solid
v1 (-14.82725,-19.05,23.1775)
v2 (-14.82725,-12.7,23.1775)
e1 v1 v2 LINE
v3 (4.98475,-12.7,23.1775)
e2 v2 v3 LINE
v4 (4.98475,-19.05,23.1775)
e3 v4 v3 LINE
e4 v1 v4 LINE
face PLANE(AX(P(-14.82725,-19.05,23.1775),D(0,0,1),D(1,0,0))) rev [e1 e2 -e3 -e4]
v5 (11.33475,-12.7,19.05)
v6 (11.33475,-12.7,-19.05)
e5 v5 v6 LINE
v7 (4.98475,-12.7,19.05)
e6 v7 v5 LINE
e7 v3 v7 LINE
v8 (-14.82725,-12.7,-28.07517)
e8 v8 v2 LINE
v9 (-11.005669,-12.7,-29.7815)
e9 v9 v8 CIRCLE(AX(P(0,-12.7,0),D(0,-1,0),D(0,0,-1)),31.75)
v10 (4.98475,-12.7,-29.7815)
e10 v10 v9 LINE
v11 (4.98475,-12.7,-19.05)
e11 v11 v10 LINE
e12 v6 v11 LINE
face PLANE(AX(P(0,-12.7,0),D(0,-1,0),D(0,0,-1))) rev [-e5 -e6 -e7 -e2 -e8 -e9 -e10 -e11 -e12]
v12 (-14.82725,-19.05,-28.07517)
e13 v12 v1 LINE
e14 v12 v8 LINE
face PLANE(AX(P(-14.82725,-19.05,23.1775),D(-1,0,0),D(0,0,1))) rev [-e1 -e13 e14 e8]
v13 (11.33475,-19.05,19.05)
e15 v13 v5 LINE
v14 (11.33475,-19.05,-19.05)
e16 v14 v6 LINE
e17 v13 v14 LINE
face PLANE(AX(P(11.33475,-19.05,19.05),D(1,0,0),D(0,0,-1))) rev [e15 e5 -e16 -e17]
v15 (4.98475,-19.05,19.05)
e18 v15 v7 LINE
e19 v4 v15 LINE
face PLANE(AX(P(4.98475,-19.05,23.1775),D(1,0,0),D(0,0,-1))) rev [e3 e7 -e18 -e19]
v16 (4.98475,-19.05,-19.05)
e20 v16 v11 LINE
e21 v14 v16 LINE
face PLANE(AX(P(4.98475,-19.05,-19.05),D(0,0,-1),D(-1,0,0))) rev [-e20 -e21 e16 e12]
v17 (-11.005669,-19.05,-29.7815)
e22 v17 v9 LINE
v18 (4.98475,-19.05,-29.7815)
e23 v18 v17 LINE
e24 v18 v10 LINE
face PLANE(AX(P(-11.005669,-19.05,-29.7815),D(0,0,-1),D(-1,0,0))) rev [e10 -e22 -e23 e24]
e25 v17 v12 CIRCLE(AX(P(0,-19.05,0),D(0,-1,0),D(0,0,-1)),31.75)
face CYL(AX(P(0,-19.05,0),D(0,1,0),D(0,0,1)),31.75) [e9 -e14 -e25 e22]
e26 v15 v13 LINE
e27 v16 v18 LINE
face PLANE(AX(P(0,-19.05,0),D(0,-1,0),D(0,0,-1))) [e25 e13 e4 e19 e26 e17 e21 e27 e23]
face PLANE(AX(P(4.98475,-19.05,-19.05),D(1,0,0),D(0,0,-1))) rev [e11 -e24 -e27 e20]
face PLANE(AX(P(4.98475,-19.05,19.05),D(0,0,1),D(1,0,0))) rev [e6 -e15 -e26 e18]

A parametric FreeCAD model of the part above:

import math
import FreeCAD as App
import Part
import Sketcher
from FreeCAD import Vector
Q = App.Units.Quantity

doc = App.newDocument("Part")
body = doc.addObject("PartDesign::Body", "Body")

sketch1 = doc.addObject("Sketcher::SketchObject", "Sketch")
body.addObject(sketch1)
sketch1.AttachmentSupport = (doc.XZ_Plane, [""])
sketch1.MapMode = "FlatFace"
sketch1.addGeometry(Part.Circle(Vector(0, 0, 0), Vector(0, 0, 1), 48), False)
sketch1.addConstraint([
    Sketcher.Constraint("Coincident", 0, 3, -1, 1),
    Sketcher.Constraint("Diameter", 0, Q("3.75 in")),
])
pad1 = doc.addObject("PartDesign::Pad", "Pad")
body.addObject(pad1)
pad1.Profile = sketch1
pad1.Length = Q("0.5 in")

sketch2 = doc.addObject("Sketcher::SketchObject", "Sketch001")
body.addObject(sketch2)
sketch2.AttachmentSupport = (doc.XZ_Plane, [""])
sketch2.MapMode = "FlatFace"
sketch2.AttachmentOffset = App.Placement(Vector(0, 0, 0.5 * 25.4), App.Rotation())
sketch2.addGeometry([
    Part.LineSegment(Vector(-15, 23, 0), Vector(-15, -30, 0)),
    Part.LineSegment(Vector(-15, -30, 0), Vector(5, -30, 0)),
    Part.LineSegment(Vector(5, -30, 0), Vector(5, 23, 0)),
    Part.LineSegment(Vector(5, 23, 0), Vector(-15, 23, 0)),
], False)
sketch2.addConstraint([
    Sketcher.Constraint("Coincident", 0, 2, 1, 1),
    Sketcher.Constraint("Coincident", 1, 2, 2, 1),
    Sketcher.Constraint("Coincident", 2, 2, 3, 1),
    Sketcher.Constraint("Coincident", 3, 2, 0, 1),
    Sketcher.Constraint("Vertical", 0),
    Sketcher.Constraint("Horizontal", 1),
    Sketcher.Constraint("Vertical", 2),
    Sketcher.Constraint("Horizontal", 3),
    Sketcher.Constraint("DistanceX", 1, 1, 1, 2, Q("0.78 in")),
    Sketcher.Constraint("DistanceY", 0, 2, 0, 1, Q("2.085 in")),
    Sketcher.Constraint("DistanceY", 0, 2, -1, 1, Q("1.1725 in")),
    Sketcher.Constraint("DistanceX", 0, 2, -1, 1, 14.82725),
])
pocket1 = doc.addObject("PartDesign::Pocket", "Pocket")
body.addObject(pocket1)
pocket1.Profile = sketch2
pocket1.Length = 9.275816
body2 = doc.addObject("PartDesign::Body", "Body001")

sketch3 = doc.addObject("Sketcher::SketchObject", "Sketch002")
body2.addObject(sketch3)
sketch3.AttachmentSupport = (doc.getObject("XZ_Plane001"), [""])
sketch3.MapMode = "FlatFace"
sketch3.addGeometry([
    Part.Circle(Vector(0, 0, 0), Vector(0, 0, 1), 47.6),
    Part.LineSegment(Vector(30.5, 32.4, 0), Vector(30.5, -5.1, 0)),
    Part.LineSegment(Vector(30.5, -5.1, 0), Vector(26, -5.1, 0)),
    Part.LineSegment(Vector(26, -5.1, 0), Vector(26, 36, 0)),
    Part.ArcOfCircle(Part.Circle(Vector(0, 0, 0), Vector(0, 0, 1), 44.4), math.radians(54), math.radians(126)),
    Part.LineSegment(Vector(-26, 36, 0), Vector(-26, -5.1, 0)),
    Part.LineSegment(Vector(-26, -5.1, 0), Vector(-30.5, -5.1, 0)),
    Part.LineSegment(Vector(-30.5, -5.1, 0), Vector(-30.5, 32.4, 0)),
    Part.ArcOfCircle(Part.Circle(Vector(0, 0, 0), Vector(0, 0, 1), 44.5), math.radians(133), math.radians(244)),
    Part.LineSegment(Vector(-19.7, -39.9, 0), Vector(-19.7, -25.1, 0)),
    Part.LineSegment(Vector(-19.7, -25.1, 0), Vector(-15.2, -25.1, 0)),
    Part.LineSegment(Vector(-15.2, -25.1, 0), Vector(-15.2, -41.8, 0)),
    Part.ArcOfCircle(Part.Circle(Vector(0, 0, 0), Vector(0, 0, 1), 44.5), math.radians(-110), math.radians(-70)),
    Part.LineSegment(Vector(15.2, -41.8, 0), Vector(15.2, -25.1, 0)),
    Part.LineSegment(Vector(15.2, -25.1, 0), Vector(19.7, -25.1, 0)),
    Part.LineSegment(Vector(19.7, -25.1, 0), Vector(19.7, -39.9, 0)),
    Part.ArcOfCircle(Part.Circle(Vector(0, 0, 0), Vector(0, 0, 1), 44.5), math.radians(-64), math.radians(47)),
], False)
sketch3.addConstraint([
    Sketcher.Constraint("Coincident", 1, 2, 2, 1),
    Sketcher.Constraint("Coincident", 2, 2, 3, 1),
    Sketcher.Constraint("Coincident", 3, 2, 4, 1),
    Sketcher.Constraint("Coincident", 4, 2, 5, 1),
    Sketcher.Constraint("Coincident", 5, 2, 6, 1),
    Sketcher.Constraint("Coincident", 6, 2, 7, 1),
    Sketcher.Constraint("Coincident", 7, 2, 8, 1),
    Sketcher.Constraint("Coincident", 8, 2, 9, 1),
    Sketcher.Constraint("Coincident", 9, 2, 10, 1),
    Sketcher.Constraint("Coincident", 10, 2, 11, 1),
    Sketcher.Constraint("Coincident", 11, 2, 12, 1),
    Sketcher.Constraint("Coincident", 12, 2, 13, 1),
    Sketcher.Constraint("Coincident", 13, 2, 14, 1),
    Sketcher.Constraint("Coincident", 14, 2, 15, 1),
    Sketcher.Constraint("Coincident", 15, 2, 16, 1),
    Sketcher.Constraint("Coincident", 16, 2, 1, 1),
    Sketcher.Constraint("Vertical", 1),
    Sketcher.Constraint("Horizontal", 2),
    Sketcher.Constraint("Vertical", 3),
    Sketcher.Constraint("Vertical", 5),
    Sketcher.Constraint("Horizontal", 6),
    Sketcher.Constraint("Vertical", 7),
    Sketcher.Constraint("Vertical", 9),
    Sketcher.Constraint("Horizontal", 10),
    Sketcher.Constraint("Vertical", 11),
    Sketcher.Constraint("Vertical", 13),
    Sketcher.Constraint("Horizontal", 14),
    Sketcher.Constraint("Vertical", 15),
    Sketcher.Constraint("Coincident", 0, 3, -1, 1),
    Sketcher.Constraint("Coincident", 4, 3, -1, 1),
    Sketcher.Constraint("Coincident", 8, 3, -1, 1),
    Sketcher.Constraint("Coincident", 12, 3, -1, 1),
    Sketcher.Constraint("Coincident", 16, 3, -1, 1),
    Sketcher.Constraint("Equal", 4, 8),
    Sketcher.Constraint("Equal", 8, 12),
    Sketcher.Constraint("Equal", 12, 16),
    Sketcher.Constraint("Symmetric", 2, 2, 5, 2, -2),
    Sketcher.Constraint("Symmetric", 10, 2, 13, 2, -2),
    Sketcher.Constraint("Horizontal", 8, 2, 15, 2),
    Sketcher.Constraint("Horizontal", 7, 2, 16, 2),
    Sketcher.Constraint("Equal", 6, 10),
    Sketcher.Constraint("Diameter", 0, Q("3.75 in")),
    Sketcher.Constraint("Radius", 4, Q("1.75 in")),
    Sketcher.Constraint("DistanceX", -1, 1, 1, 2, Q("1.2 in")),
    Sketcher.Constraint("DistanceY", 1, 2, -1, 1, Q("0.2 in")),
    Sketcher.Constraint("DistanceX", 10, 2, -1, 1, Q("0.6 in")),
    Sketcher.Constraint("DistanceX", 2, 2, 2, 1, Q("0.175 in")),
    Sketcher.Constraint("DistanceY", 9, 2, -1, 1, Q("0.9875 in")),
])
pad2 = doc.addObject("PartDesign::Pad", "Pad001")
body2.addObject(pad2)
pad2.Profile = sketch3
pad2.Length = Q("0.5 in")
pad2.Reversed = True
body3 = doc.addObject("PartDesign::Body", "Body002")

sketch4 = doc.addObject("Sketcher::SketchObject", "Sketch003")
body3.addObject(sketch4)
sketch4.AttachmentSupport = (doc.getObject("XZ_Plane002"), [""])
sketch4.MapMode = "FlatFace"
sketch4.addGeometry([
    Part.ArcOfCircle(Part.Circle(Vector(0, 0, 0), Vector(0, 0, 1), 44), math.radians(76.79), math.radians(83.85)),
    Part.LineSegment(Vector(10, 43, 0), Vector(10, -43, 0)),
    Part.ArcOfCircle(Part.Circle(Vector(0, 0, 0), Vector(0, 0, 1), 44), math.radians(-83.85), math.radians(-76.79)),
    Part.LineSegment(Vector(5, -44, 0), Vector(5, 44, 0)),
], False)
sketch4.addConstraint([
    Sketcher.Constraint("Coincident", 0, 1, 1, 1),
    Sketcher.Constraint("Coincident", 1, 2, 2, 2),
    Sketcher.Constraint("Coincident", 2, 1, 3, 1),
    Sketcher.Constraint("Coincident", 3, 2, 0, 2),
    Sketcher.Constraint("Vertical", 1),
    Sketcher.Constraint("Vertical", 3),
    Sketcher.Constraint("Coincident", 0, 3, -1, 1),
    Sketcher.Constraint("Coincident", 2, 3, -1, 1),
    Sketcher.Constraint("Equal", 0, 2),
    Sketcher.Constraint("Radius", 0, Q("1.75 in")),
    Sketcher.Constraint("DistanceX", -1, 1, 0, 1, Q("0.4 in")),
    Sketcher.Constraint("DistanceX", -1, 1, 2, 1, Q("0.1875 in")),
])
pad3 = doc.addObject("PartDesign::Pad", "Pad002")
body3.addObject(pad3)
pad3.Profile = sketch4
pad3.Length = Q("0.1875 in")
pad3.Reversed = True
body4 = doc.addObject("PartDesign::Body", "Body003")

sketch5 = doc.addObject("Sketcher::SketchObject", "Sketch004")
body4.addObject(sketch5)
sketch5.AttachmentSupport = (doc.getObject("XZ_Plane003"), [""])
sketch5.MapMode = "FlatFace"
sketch5.AttachmentOffset = App.Placement(Vector(0, 0, 0.5 * 25.4), App.Rotation())
sketch5.addGeometry([
    Part.LineSegment(Vector(-14.8, 23.2, 0), Vector(5, 23.2, 0)),
    Part.LineSegment(Vector(5, 23.2, 0), Vector(5, 19.1, 0)),
    Part.LineSegment(Vector(5, 19.1, 0), Vector(11.3, 19.1, 0)),
    Part.LineSegment(Vector(11.3, 19.1, 0), Vector(11.3, -19.1, 0)),
    Part.LineSegment(Vector(11.3, -19.1, 0), Vector(5, -19.1, 0)),
    Part.LineSegment(Vector(5, -19.1, 0), Vector(5, -29.8, 0)),
    Part.LineSegment(Vector(5, -29.8, 0), Vector(-11, -29.8, 0)),
    Part.ArcOfCircle(Part.Circle(Vector(0, 0, 0), Vector(0, 0, 1), 31.8), math.radians(-110), math.radians(242)),
    Part.LineSegment(Vector(-14.8, -28.1, 0), Vector(-14.8, 23.2, 0)),
], False)
sketch5.addConstraint([
    Sketcher.Constraint("Coincident", 0, 2, 1, 1),
    Sketcher.Constraint("Coincident", 1, 2, 2, 1),
    Sketcher.Constraint("Coincident", 2, 2, 3, 1),
    Sketcher.Constraint("Coincident", 3, 2, 4, 1),
    Sketcher.Constraint("Coincident", 4, 2, 5, 1),
    Sketcher.Constraint("Coincident", 5, 2, 6, 1),
    Sketcher.Constraint("Coincident", 6, 2, 7, 1),
    Sketcher.Constraint("Coincident", 7, 2, 8, 1),
    Sketcher.Constraint("Coincident", 8, 2, 0, 1),
    Sketcher.Constraint("Horizontal", 0),
    Sketcher.Constraint("Vertical", 1),
    Sketcher.Constraint("Horizontal", 2),
    Sketcher.Constraint("Vertical", 3),
    Sketcher.Constraint("Horizontal", 4),
    Sketcher.Constraint("Vertical", 5),
    Sketcher.Constraint("Horizontal", 6),
    Sketcher.Constraint("Vertical", 8),
    Sketcher.Constraint("Coincident", 7, 3, -1, 1),
    Sketcher.Constraint("Symmetric", 1, 2, 4, 2, -1),
    Sketcher.Constraint("Radius", 7, Q("1.25 in")),
    Sketcher.Constraint("DistanceY", 3, 2, 3, 1, Q("1.5 in")),
    Sketcher.Constraint("DistanceX", 0, 1, 0, 2, Q("0.78 in")),
    Sketcher.Constraint("DistanceX", 2, 1, 2, 2, Q("0.25 in")),
    Sketcher.Constraint("DistanceY", 1, 2, 1, 1, Q("0.1625 in")),
    Sketcher.Constraint("DistanceY", 5, 2, 5, 1, Q("0.4225 in")),
    Sketcher.Constraint("DistanceX", 6, 2, 6, 1, 15.990419),
])
pad4 = doc.addObject("PartDesign::Pad", "Pad003")
body4.addObject(pad4)
pad4.Profile = sketch5
pad4.Length = Q("0.25 in")
body.Visibility = False
body2.Visibility = False
body3.Visibility = False

doc.recompute()
